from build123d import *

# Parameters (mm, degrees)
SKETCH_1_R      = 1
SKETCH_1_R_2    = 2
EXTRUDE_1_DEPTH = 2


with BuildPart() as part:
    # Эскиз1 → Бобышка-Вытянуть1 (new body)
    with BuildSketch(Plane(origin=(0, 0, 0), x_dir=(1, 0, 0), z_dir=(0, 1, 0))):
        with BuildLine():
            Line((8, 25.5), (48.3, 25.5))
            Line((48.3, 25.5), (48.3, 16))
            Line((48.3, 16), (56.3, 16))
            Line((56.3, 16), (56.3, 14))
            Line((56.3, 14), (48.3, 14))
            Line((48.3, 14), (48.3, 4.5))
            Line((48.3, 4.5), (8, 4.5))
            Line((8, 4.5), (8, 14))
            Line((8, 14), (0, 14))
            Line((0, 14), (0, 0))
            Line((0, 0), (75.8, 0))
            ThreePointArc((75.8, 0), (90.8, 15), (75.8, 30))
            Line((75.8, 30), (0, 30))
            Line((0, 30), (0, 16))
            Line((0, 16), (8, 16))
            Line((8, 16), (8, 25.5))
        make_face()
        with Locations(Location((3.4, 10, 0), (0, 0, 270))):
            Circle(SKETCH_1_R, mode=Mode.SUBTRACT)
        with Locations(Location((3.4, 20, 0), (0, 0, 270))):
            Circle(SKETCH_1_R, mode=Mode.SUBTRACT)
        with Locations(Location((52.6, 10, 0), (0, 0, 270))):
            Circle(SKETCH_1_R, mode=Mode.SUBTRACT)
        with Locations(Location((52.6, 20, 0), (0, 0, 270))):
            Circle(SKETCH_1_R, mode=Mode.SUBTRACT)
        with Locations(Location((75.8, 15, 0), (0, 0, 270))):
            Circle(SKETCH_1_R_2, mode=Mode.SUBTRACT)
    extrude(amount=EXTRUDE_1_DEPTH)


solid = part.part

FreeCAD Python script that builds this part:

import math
import FreeCAD as App
import Part
import Sketcher
from FreeCAD import Vector
Q = App.Units.Quantity

doc = App.newDocument("Part")
body = doc.addObject("PartDesign::Body", "Body")

# Sketch on XZ plane
sketch1 = body.newObject("Sketcher::SketchObject", "Sketch")
sketch1.AttachmentSupport = (doc.getObject("XZ_Plane"), [""])
sketch1.MapMode = "FlatFace"
sketch1.addGeometry(Part.LineSegment(Vector(8, -25.5, 0), Vector(48.3, -25.5, 0)), False)
sketch1.addGeometry(Part.LineSegment(Vector(48.3, -25.5, 0), Vector(48.3, -16, 0)), False)
sketch1.addGeometry(Part.LineSegment(Vector(48.3, -16, 0), Vector(56.3, -16, 0)), False)
sketch1.addGeometry(Part.LineSegment(Vector(56.3, -16, 0), Vector(56.3, -14, 0)), False)
sketch1.addGeometry(Part.LineSegment(Vector(56.3, -14, 0), Vector(48.3, -14, 0)), False)
sketch1.addGeometry(Part.LineSegment(Vector(48.3, -14, 0), Vector(48.3, -4.5, 0)), False)
sketch1.addGeometry(Part.LineSegment(Vector(48.3, -4.5, 0), Vector(8, -4.5, 0)), False)
sketch1.addGeometry(Part.LineSegment(Vector(8, -4.5, 0), Vector(8, -14, 0)), False)
sketch1.addGeometry(Part.LineSegment(Vector(8, -14, 0), Vector(0, -14, 0)), False)
sketch1.addGeometry(Part.LineSegment(Vector(0, -14, 0), Vector(0, 0, 0)), False)
sketch1.addGeometry(Part.LineSegment(Vector(0, 0, 0), Vector(75.8, 0, 0)), False)
sketch1.addGeometry(Part.ArcOfCircle(Part.Circle(Vector(75.8, -15, 0), Vector(0, 0, 1), 15), math.radians(-90), math.radians(90)), False)
sketch1.addGeometry(Part.LineSegment(Vector(75.8, -30, 0), Vector(0, -30, 0)), False)
sketch1.addGeometry(Part.LineSegment(Vector(0, -30, 0), Vector(0, -16, 0)), False)
sketch1.addGeometry(Part.LineSegment(Vector(0, -16, 0), Vector(8, -16, 0)), False)
sketch1.addGeometry(Part.LineSegment(Vector(8, -16, 0), Vector(8, -25.5, 0)), False)
sketch1.addGeometry(Part.Circle(Vector(3.4, -10, 0), Vector(0, 0, 1), 1), False)
sketch1.addGeometry(Part.Circle(Vector(52.6, -10, 0), Vector(0, 0, 1), 1), False)
sketch1.addGeometry(Part.Circle(Vector(3.4, -20, 0), Vector(0, 0, 1), 1), False)
sketch1.addGeometry(Part.Circle(Vector(75.8, -15, 0), Vector(0, 0, 1), 2), False)
sketch1.addGeometry(Part.Circle(Vector(52.6, -20, 0), Vector(0, 0, 1), 1), False)
sketch1.addConstraint(Sketcher.Constraint("Coincident", 0, 2, 1, 1))
sketch1.addConstraint(Sketcher.Constraint("Coincident", 1, 2, 2, 1))
sketch1.addConstraint(Sketcher.Constraint("Coincident", 2, 2, 3, 1))
sketch1.addConstraint(Sketcher.Constraint("Coincident", 3, 2, 4, 1))
sketch1.addConstraint(Sketcher.Constraint("Coincident", 4, 2, 5, 1))
sketch1.addConstraint(Sketcher.Constraint("Coincident", 5, 2, 6, 1))
sketch1.addConstraint(Sketcher.Constraint("Coincident", 6, 2, 7, 1))
sketch1.addConstraint(Sketcher.Constraint("Coincident", 7, 2, 8, 1))
sketch1.addConstraint(Sketcher.Constraint("Coincident", 8, 2, 9, 1))
sketch1.addConstraint(Sketcher.Constraint("Coincident", 9, 2, 10, 1))
sketch1.addConstraint(Sketcher.Constraint("Tangent", 10, 2, 11, 2))
sketch1.addConstraint(Sketcher.Constraint("Tangent", 11, 1, 12, 1))
sketch1.addConstraint(Sketcher.Constraint("Coincident", 12, 2, 13, 1))
sketch1.addConstraint(Sketcher.Constraint("Coincident", 13, 2, 14, 1))
sketch1.addConstraint(Sketcher.Constraint("Coincident", 14, 2, 15, 1))
sketch1.addConstraint(Sketcher.Constraint("Coincident", 15, 2, 0, 1))
sketch1.addConstraint(Sketcher.Constraint("Horizontal", 0))
sketch1.addConstraint(Sketcher.Constraint("Vertical", 1))
sketch1.addConstraint(Sketcher.Constraint("Horizontal", 2))
sketch1.addConstraint(Sketcher.Constraint("Vertical", 3))
sketch1.addConstraint(Sketcher.Constraint("Horizontal", 4))
sketch1.addConstraint(Sketcher.Constraint("Vertical", 5))
sketch1.addConstraint(Sketcher.Constraint("Horizontal", 6))
sketch1.addConstraint(Sketcher.Constraint("Vertical", 7))
sketch1.addConstraint(Sketcher.Constraint("Horizontal", 8))
sketch1.addConstraint(Sketcher.Constraint("Vertical", 9))
sketch1.addConstraint(Sketcher.Constraint("Horizontal", 10))
sketch1.addConstraint(Sketcher.Constraint("Horizontal", 12))
sketch1.addConstraint(Sketcher.Constraint("Vertical", 13))
sketch1.addConstraint(Sketcher.Constraint("Horizontal", 14))
sketch1.addConstraint(Sketcher.Constraint("Vertical", 15))
sketch1.addConstraint(Sketcher.Constraint("Coincident", 9, 2, -1, 1))
sketch1.addConstraint(Sketcher.Constraint("Coincident", 19, 3, 11, 3))
sketch1.addConstraint(Sketcher.Constraint("Equal", 16, 17))
sketch1.addConstraint(Sketcher.Constraint("Equal", 17, 18))
sketch1.addConstraint(Sketcher.Constraint("Equal", 18, 20))
sketch1.addConstraint(Sketcher.Constraint("PointOnObject", 12, 2, -2))
sketch1.addConstraint(Sketcher.Constraint("Horizontal", 16, 3, 17, 3))
sketch1.addConstraint(Sketcher.Constraint("Horizontal", 18, 3, 20, 3))
sketch1.addConstraint(Sketcher.Constraint("Horizontal", 4, 2, 7, 2))
sketch1.addConstraint(Sketcher.Constraint("Horizontal", 2, 2, 13, 2))
sketch1.addConstraint(Sketcher.Constraint("Vertical", 16, 3, 18, 3))
sketch1.addConstraint(Sketcher.Constraint("Vertical", 17, 3, 20, 3))
sketch1.addConstraint(Sketcher.Constraint("Vertical", 1, 2, 4, 2))
sketch1.addConstraint(Sketcher.Constraint("Vertical", 7, 2, 14, 2))
sketch1.addConstraint(Sketcher.Constraint("Equal", 4, 8))
sketch1.addConstraint(Sketcher.Constraint("Equal", 1, 5))
sketch1.addConstraint(Sketcher.Constraint("Equal", 9, 13))
sketch1.addConstraint(Sketcher.Constraint("Diameter", 16, Q("2 mm")))
sketch1.addConstraint(Sketcher.Constraint("Diameter", 19, Q("4 mm")))
sketch1.addConstraint(Sketcher.Constraint("Radius", 11, Q("15 mm")))
sketch1.addConstraint(Sketcher.Constraint("DistanceX", 2, 1, 2, 2, Q("8 mm")))
sketch1.addConstraint(Sketcher.Constraint("DistanceY", 3, 1, 3, 2, Q("2 mm")))
sketch1.addConstraint(Sketcher.Constraint("DistanceX", 0, 1, 0, 2, Q("40.3 mm")))
sketch1.addConstraint(Sketcher.Constraint("DistanceX", 10, 1, 10, 2, Q("75.8 mm")))
sketch1.addConstraint(Sketcher.Constraint("DistanceY", 1, 1, 1, 2, Q("9.5 mm")))
sketch1.addConstraint(Sketcher.Constraint("DistanceY", 16, 3, -1, 1, Q("10 mm")))
sketch1.addConstraint(Sketcher.Constraint("DistanceY", 18, 3, -1, 1, Q("20 mm")))
sketch1.addConstraint(Sketcher.Constraint("DistanceX", -1, 1, 16, 3, Q("3.4 mm")))
sketch1.addConstraint(Sketcher.Constraint("DistanceX", -1, 1, 17, 3, Q("52.6 mm")))
pad1 = body.newObject("PartDesign::Pad", "Pad")
pad1.Profile = sketch1
pad1.Length = 2
pad1.Reversed = True

doc.recompute()
